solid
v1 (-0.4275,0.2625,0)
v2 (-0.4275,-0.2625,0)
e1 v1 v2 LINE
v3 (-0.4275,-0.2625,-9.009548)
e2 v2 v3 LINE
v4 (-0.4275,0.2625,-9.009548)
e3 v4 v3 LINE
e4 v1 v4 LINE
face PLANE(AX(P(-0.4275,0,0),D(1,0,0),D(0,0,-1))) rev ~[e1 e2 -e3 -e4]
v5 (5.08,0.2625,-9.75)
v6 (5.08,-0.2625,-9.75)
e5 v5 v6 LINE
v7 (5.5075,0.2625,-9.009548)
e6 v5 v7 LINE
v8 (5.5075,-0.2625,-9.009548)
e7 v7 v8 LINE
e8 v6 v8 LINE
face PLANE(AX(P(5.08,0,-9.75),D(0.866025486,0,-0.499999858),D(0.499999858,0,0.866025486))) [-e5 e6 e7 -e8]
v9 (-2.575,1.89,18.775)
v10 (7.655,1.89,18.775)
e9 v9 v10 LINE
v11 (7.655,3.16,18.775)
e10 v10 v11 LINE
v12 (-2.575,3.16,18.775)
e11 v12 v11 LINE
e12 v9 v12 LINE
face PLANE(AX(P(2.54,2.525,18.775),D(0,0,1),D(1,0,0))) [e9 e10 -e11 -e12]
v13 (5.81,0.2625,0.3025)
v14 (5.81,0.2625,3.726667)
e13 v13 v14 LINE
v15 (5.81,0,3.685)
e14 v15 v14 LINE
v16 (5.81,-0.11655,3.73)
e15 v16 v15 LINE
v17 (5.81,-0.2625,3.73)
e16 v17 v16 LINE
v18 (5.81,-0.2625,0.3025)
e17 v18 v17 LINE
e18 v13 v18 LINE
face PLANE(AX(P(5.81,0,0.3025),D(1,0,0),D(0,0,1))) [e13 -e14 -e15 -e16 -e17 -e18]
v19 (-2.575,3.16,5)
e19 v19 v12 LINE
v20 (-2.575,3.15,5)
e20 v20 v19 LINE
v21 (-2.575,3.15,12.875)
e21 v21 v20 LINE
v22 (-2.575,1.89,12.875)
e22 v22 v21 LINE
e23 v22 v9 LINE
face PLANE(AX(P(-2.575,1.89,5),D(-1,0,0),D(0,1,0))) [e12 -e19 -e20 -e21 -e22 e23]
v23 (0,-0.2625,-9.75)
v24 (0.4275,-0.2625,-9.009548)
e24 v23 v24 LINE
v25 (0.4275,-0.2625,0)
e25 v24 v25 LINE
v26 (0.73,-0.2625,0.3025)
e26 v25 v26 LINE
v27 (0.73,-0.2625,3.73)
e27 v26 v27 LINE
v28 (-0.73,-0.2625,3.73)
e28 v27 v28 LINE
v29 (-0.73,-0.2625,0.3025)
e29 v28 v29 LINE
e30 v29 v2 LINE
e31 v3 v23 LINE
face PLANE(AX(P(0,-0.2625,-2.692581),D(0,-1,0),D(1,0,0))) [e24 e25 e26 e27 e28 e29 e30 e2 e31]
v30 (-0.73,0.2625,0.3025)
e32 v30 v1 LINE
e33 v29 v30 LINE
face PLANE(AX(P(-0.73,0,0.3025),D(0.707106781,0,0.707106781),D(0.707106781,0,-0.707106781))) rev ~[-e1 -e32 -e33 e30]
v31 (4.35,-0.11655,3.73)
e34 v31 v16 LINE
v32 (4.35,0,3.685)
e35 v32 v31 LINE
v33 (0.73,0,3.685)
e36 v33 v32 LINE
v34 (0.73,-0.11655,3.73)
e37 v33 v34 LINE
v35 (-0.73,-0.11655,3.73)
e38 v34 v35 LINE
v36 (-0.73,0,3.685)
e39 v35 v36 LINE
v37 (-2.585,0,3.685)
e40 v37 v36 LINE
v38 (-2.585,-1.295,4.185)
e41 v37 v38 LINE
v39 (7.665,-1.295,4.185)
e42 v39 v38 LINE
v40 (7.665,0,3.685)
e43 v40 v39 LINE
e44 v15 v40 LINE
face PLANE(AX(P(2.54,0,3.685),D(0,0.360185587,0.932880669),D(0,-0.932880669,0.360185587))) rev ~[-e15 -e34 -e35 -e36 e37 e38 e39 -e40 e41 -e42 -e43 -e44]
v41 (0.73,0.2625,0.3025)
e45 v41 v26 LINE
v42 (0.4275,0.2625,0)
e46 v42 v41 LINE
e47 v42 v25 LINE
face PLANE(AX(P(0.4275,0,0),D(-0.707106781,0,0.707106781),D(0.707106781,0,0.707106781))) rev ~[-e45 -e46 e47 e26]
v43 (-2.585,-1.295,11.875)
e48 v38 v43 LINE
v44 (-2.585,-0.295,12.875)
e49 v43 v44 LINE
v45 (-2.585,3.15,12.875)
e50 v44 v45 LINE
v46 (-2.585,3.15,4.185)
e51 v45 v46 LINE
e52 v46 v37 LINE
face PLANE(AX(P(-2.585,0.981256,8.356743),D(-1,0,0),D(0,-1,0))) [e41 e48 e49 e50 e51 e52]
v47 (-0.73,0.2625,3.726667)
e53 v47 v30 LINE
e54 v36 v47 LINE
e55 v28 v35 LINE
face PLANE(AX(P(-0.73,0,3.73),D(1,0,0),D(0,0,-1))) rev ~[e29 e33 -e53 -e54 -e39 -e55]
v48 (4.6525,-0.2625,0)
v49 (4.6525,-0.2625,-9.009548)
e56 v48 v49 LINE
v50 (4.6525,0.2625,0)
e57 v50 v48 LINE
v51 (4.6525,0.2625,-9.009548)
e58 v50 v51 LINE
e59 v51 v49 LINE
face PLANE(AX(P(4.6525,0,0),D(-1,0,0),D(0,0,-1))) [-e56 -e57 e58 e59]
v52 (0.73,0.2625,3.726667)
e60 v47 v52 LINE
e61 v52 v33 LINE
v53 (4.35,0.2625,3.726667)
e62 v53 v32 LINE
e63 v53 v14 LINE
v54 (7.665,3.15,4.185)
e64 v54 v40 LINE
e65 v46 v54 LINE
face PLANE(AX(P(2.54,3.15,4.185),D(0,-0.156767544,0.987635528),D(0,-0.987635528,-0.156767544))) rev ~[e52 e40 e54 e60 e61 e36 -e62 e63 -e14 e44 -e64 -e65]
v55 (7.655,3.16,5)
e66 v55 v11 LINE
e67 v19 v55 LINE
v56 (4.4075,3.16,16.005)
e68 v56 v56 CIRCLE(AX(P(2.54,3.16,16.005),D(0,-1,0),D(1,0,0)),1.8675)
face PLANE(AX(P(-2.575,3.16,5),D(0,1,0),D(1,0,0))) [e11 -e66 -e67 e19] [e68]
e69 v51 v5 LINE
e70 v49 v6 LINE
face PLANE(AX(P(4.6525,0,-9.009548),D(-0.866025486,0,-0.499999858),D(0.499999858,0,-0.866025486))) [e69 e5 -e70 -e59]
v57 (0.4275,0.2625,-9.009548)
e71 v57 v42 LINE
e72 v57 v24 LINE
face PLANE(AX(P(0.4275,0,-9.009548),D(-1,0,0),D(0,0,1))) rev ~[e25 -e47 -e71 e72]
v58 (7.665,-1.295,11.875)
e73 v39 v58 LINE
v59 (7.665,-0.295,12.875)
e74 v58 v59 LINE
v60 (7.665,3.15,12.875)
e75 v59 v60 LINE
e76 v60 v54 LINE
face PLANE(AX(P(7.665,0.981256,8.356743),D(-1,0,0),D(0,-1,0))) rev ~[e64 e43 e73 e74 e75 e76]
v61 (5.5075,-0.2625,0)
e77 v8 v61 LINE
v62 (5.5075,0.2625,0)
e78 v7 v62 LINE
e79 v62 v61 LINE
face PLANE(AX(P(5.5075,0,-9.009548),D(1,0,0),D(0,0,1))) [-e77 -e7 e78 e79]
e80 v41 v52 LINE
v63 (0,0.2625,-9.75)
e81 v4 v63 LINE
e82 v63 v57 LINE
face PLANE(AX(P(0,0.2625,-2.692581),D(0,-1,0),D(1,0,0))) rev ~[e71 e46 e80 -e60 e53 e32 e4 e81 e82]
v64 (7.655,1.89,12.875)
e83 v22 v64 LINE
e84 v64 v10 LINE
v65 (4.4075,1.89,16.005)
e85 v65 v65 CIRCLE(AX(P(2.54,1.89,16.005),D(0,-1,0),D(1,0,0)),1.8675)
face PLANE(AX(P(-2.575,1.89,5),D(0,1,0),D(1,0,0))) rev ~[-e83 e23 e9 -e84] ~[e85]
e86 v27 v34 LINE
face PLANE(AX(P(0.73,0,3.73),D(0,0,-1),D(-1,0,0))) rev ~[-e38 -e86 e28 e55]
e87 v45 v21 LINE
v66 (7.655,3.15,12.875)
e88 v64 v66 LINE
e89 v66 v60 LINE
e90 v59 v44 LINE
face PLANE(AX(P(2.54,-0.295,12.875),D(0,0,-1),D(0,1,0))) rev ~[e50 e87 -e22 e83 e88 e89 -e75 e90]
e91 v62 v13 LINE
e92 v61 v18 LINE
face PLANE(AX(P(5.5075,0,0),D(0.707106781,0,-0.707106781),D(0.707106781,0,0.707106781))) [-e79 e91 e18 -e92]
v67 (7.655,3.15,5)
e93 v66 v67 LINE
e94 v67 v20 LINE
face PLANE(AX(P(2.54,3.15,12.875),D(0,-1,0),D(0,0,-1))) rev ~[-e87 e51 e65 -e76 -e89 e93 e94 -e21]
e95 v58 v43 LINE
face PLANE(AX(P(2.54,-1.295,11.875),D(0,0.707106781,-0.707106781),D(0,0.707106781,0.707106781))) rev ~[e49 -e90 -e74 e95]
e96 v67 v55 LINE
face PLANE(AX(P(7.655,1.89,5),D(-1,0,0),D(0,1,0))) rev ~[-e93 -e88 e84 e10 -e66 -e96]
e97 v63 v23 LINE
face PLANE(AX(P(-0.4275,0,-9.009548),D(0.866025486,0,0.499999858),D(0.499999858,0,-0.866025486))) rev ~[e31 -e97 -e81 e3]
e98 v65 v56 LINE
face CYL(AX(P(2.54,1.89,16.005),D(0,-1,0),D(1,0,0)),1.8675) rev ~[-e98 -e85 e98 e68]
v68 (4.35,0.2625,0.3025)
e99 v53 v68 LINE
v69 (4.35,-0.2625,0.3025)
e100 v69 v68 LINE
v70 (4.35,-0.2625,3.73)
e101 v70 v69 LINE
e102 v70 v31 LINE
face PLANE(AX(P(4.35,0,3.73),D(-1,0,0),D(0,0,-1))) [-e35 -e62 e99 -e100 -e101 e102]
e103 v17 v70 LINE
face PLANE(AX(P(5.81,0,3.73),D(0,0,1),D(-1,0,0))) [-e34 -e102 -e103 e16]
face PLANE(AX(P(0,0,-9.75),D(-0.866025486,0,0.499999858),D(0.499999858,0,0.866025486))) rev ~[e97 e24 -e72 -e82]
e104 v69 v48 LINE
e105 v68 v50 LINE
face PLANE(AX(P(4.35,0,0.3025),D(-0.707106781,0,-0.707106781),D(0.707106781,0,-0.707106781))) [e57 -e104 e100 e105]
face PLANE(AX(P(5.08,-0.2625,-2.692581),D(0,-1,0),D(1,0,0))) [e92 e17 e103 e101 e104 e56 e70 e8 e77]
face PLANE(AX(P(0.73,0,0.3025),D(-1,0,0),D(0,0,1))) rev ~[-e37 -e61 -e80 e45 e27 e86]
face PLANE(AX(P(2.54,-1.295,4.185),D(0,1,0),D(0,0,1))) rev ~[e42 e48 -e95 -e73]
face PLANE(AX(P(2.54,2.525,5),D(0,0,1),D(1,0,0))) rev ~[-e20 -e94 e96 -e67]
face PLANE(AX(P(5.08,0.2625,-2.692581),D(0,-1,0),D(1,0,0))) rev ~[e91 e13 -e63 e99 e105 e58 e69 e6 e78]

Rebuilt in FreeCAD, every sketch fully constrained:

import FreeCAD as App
import Part
import Sketcher
Q = App.Units.Quantity


def add_polygon(sketch, points):
    """Adds a closed chain of lines whose ends are joined by coincident constraints."""
    first, n = sketch.GeometryCount, len(points)
    for a, b in zip(points, points[1:] + points[:1]):
        sketch.addGeometry(Part.LineSegment(App.Vector(*a, 0), App.Vector(*b, 0)), False)
    for i in range(n):
        sketch.addConstraint(Sketcher.Constraint("Coincident", first + i, 2, first + (i + 1) % n, 1))

doc = App.newDocument("Part")
body = doc.addObject("PartDesign::Body", "Body")

sketch1 = doc.addObject("Sketcher::SketchObject", "Sketch")
body.addObject(sketch1)
sketch1.AttachmentSupport = (doc.XY_Plane, [""])
sketch1.MapMode = "FlatFace"
sketch1.AttachmentOffset = App.Placement(App.Vector(0, 0, 5), App.Rotation())
add_polygon(sketch1, [(-2.575, 3.16), (-2.575, 1.89), (7.655, 1.89), (7.655, 3.16)])
sketch1.addConstraint([
    Sketcher.Constraint("Vertical", 0),
    Sketcher.Constraint("Horizontal", 1),
    Sketcher.Constraint("Vertical", 2),
    Sketcher.Constraint("Horizontal", 3),
    Sketcher.Constraint("DistanceY", 0, 2, 0, 1, Q("0.05 in")),
    Sketcher.Constraint("DistanceX", 1, 1, 1, 2, 10.23),
    Sketcher.Constraint("DistanceX", 0, 2, -1, 1, 2.575),
    Sketcher.Constraint("DistanceY", -1, 1, 0, 2, 1.89),
])
pad1 = doc.addObject("PartDesign::Pad", "Pad")
body.addObject(pad1)
pad1.Profile = sketch1
pad1.Length = 13.775

sketch2 = doc.addObject("Sketcher::SketchObject", "Sketch001")
body.addObject(sketch2)
sketch2.AttachmentSupport = (doc.XZ_Plane, [""])
sketch2.MapMode = "FlatFace"
sketch2.AttachmentOffset = App.Placement(App.Vector(0, 0, -1.89), App.Rotation())
sketch2.addGeometry(Part.Circle(App.Vector(2.54, 16.005, 0), App.Vector(0, 0, 1), 1.8675), False)
sketch2.addConstraint([
    Sketcher.Constraint("DistanceX", -1, 1, 0, 3, Q("0.1 in")),
    Sketcher.Constraint("Diameter", 0, 3.735),
    Sketcher.Constraint("DistanceY", -1, 1, 0, 3, 16.005),
])
pocket1 = doc.addObject("PartDesign::Pocket", "Pocket")
body.addObject(pocket1)
pocket1.Profile = sketch2
pocket1.Type = "ThroughAll"
body2 = doc.addObject("PartDesign::Body", "Body001")
body2.AllowCompound = True

sketch3 = doc.addObject("Sketcher::SketchObject", "Sketch002")
body2.addObject(sketch3)
sketch3.AttachmentSupport = (doc.getObject("XZ_Plane001"), [""])
sketch3.MapMode = "FlatFace"
add_polygon(sketch3, [(-0.73, 0.3025), (-0.4275, 0), (-0.4275, -9.009548), (0, -9.75), (0.4275, -9.009548), (0.4275, 0), (0.73, 0.3025), (0.73, 3.73), (-0.73, 3.73)])
add_polygon(sketch3, [(4.35, 0.3025), (4.6525, 0), (4.6525, -9.009548), (5.08, -9.75), (5.5075, -9.009548), (5.5075, 0), (5.81, 0.3025), (5.81, 3.73), (4.35, 3.73)])
sketch3.addConstraint([
    Sketcher.Constraint("Vertical", 1),
    Sketcher.Constraint("Vertical", 4),
    Sketcher.Constraint("Vertical", 6),
    Sketcher.Constraint("Horizontal", 7),
    Sketcher.Constraint("Vertical", 8),
    Sketcher.Constraint("Vertical", 10),
    Sketcher.Constraint("Vertical", 13),
    Sketcher.Constraint("Vertical", 15),
    Sketcher.Constraint("Horizontal", 16),
    Sketcher.Constraint("Vertical", 17),
    Sketcher.Constraint("Symmetric", 0, 2, 4, 2, -1, 1),
    Sketcher.Constraint("Symmetric", 5, 2, 8, 2, -2),
    Sketcher.Constraint("PointOnObject", 0, 2, -1),
    Sketcher.Constraint("PointOnObject", 2, 2, -2),
    Sketcher.Constraint("PointOnObject", 9, 2, -1),
    Sketcher.Constraint("PointOnObject", 13, 2, -1),
    Sketcher.Constraint("Perpendicular", 0, 5),
    Sketcher.Constraint("Perpendicular", 5, 9),
    Sketcher.Constraint("Parallel", 2, 11),
    Sketcher.Constraint("Parallel", 3, 12),
    Sketcher.Constraint("Perpendicular", 9, 14),
    Sketcher.Constraint("Horizontal", 1, 2, 3, 2),
    Sketcher.Constraint("Horizontal", 3, 2, 10, 2),
    Sketcher.Constraint("Horizontal", 2, 2, 11, 2),
    Sketcher.Constraint("Horizontal", 10, 2, 12, 2),
    Sketcher.Constraint("Horizontal", 8, 2, 14, 2),
    Sketcher.Constraint("Horizontal", 7, 2, 15, 2),
    Sketcher.Constraint("Horizontal", 14, 2, 17, 2),
    Sketcher.Constraint("Angle", 2, Q("-60.000009 deg")),
    Sketcher.Constraint("DistanceX", -1, 1, 11, 2, Q("0.2 in")),
    Sketcher.Constraint("DistanceX", 7, 2, 7, 1, 1.46),
    Sketcher.Constraint("DistanceY", 6, 1, 6, 2, 3.4275),
    Sketcher.Constraint("Distance", 0, 0.4278),
    Sketcher.Constraint("DistanceY", 2, 2, -1, 1, 9.75),
])
pad2 = doc.addObject("PartDesign::Pad", "Pad001")
body2.addObject(pad2)
pad2.Profile = sketch3
pad2.Length = 0.525
pad2.Midplane = True
body3 = doc.addObject("PartDesign::Body", "Body002")

sketch4 = doc.addObject("Sketcher::SketchObject", "Sketch003")
body3.addObject(sketch4)
sketch4.AttachmentSupport = (doc.getObject("YZ_Plane002"), [""])
sketch4.MapMode = "FlatFace"
sketch4.AttachmentOffset = App.Placement(App.Vector(0, 0, 0.1 * 25.4), App.Rotation())
add_polygon(sketch4, [(-1.295, 4.185), (0, 3.685), (3.15, 4.185), (3.15, 12.875), (-0.295, 12.875), (-1.295, 11.875)])
sketch4.addConstraint([
    Sketcher.Constraint("Vertical", 2),
    Sketcher.Constraint("Horizontal", 3),
    Sketcher.Constraint("Vertical", 5),
    Sketcher.Constraint("PointOnObject", 0, 2, -2),
    Sketcher.Constraint("Horizontal", 1, 2, 5, 2),
    Sketcher.Constraint("Angle", 4, Q("-135 deg")),
    Sketcher.Constraint("DistanceX", 4, 2, 2, 2, Q("0.175 in")),
    Sketcher.Constraint("DistanceX", 3, 2, 3, 1, 3.445),
    Sketcher.Constraint("DistanceY", 2, 1, 2, 2, 8.69),
    Sketcher.Constraint("DistanceY", -1, 1, 0, 2, 3.685),
    Sketcher.Constraint("DistanceX", -1, 1, 1, 2, 3.15),
    Sketcher.Constraint("DistanceY", -1, 1, 1, 2, 4.185),
])
pad3 = doc.addObject("PartDesign::Pad", "Pad002")
body3.addObject(pad3)
pad3.Profile = sketch4
pad3.Length = 10.25
pad3.Midplane = True
doc.recompute()

boolean = doc.addObject("PartDesign::Boolean", "Boolean")
body3.addObject(boolean)
boolean.Type = "Fuse"
boolean.addObjects([body])
doc.recompute()

boolean2 = doc.addObject("PartDesign::Boolean", "Boolean001")
body3.addObject(boolean2)
boolean2.Type = "Fuse"
boolean2.addObjects([body2])

doc.recompute()
